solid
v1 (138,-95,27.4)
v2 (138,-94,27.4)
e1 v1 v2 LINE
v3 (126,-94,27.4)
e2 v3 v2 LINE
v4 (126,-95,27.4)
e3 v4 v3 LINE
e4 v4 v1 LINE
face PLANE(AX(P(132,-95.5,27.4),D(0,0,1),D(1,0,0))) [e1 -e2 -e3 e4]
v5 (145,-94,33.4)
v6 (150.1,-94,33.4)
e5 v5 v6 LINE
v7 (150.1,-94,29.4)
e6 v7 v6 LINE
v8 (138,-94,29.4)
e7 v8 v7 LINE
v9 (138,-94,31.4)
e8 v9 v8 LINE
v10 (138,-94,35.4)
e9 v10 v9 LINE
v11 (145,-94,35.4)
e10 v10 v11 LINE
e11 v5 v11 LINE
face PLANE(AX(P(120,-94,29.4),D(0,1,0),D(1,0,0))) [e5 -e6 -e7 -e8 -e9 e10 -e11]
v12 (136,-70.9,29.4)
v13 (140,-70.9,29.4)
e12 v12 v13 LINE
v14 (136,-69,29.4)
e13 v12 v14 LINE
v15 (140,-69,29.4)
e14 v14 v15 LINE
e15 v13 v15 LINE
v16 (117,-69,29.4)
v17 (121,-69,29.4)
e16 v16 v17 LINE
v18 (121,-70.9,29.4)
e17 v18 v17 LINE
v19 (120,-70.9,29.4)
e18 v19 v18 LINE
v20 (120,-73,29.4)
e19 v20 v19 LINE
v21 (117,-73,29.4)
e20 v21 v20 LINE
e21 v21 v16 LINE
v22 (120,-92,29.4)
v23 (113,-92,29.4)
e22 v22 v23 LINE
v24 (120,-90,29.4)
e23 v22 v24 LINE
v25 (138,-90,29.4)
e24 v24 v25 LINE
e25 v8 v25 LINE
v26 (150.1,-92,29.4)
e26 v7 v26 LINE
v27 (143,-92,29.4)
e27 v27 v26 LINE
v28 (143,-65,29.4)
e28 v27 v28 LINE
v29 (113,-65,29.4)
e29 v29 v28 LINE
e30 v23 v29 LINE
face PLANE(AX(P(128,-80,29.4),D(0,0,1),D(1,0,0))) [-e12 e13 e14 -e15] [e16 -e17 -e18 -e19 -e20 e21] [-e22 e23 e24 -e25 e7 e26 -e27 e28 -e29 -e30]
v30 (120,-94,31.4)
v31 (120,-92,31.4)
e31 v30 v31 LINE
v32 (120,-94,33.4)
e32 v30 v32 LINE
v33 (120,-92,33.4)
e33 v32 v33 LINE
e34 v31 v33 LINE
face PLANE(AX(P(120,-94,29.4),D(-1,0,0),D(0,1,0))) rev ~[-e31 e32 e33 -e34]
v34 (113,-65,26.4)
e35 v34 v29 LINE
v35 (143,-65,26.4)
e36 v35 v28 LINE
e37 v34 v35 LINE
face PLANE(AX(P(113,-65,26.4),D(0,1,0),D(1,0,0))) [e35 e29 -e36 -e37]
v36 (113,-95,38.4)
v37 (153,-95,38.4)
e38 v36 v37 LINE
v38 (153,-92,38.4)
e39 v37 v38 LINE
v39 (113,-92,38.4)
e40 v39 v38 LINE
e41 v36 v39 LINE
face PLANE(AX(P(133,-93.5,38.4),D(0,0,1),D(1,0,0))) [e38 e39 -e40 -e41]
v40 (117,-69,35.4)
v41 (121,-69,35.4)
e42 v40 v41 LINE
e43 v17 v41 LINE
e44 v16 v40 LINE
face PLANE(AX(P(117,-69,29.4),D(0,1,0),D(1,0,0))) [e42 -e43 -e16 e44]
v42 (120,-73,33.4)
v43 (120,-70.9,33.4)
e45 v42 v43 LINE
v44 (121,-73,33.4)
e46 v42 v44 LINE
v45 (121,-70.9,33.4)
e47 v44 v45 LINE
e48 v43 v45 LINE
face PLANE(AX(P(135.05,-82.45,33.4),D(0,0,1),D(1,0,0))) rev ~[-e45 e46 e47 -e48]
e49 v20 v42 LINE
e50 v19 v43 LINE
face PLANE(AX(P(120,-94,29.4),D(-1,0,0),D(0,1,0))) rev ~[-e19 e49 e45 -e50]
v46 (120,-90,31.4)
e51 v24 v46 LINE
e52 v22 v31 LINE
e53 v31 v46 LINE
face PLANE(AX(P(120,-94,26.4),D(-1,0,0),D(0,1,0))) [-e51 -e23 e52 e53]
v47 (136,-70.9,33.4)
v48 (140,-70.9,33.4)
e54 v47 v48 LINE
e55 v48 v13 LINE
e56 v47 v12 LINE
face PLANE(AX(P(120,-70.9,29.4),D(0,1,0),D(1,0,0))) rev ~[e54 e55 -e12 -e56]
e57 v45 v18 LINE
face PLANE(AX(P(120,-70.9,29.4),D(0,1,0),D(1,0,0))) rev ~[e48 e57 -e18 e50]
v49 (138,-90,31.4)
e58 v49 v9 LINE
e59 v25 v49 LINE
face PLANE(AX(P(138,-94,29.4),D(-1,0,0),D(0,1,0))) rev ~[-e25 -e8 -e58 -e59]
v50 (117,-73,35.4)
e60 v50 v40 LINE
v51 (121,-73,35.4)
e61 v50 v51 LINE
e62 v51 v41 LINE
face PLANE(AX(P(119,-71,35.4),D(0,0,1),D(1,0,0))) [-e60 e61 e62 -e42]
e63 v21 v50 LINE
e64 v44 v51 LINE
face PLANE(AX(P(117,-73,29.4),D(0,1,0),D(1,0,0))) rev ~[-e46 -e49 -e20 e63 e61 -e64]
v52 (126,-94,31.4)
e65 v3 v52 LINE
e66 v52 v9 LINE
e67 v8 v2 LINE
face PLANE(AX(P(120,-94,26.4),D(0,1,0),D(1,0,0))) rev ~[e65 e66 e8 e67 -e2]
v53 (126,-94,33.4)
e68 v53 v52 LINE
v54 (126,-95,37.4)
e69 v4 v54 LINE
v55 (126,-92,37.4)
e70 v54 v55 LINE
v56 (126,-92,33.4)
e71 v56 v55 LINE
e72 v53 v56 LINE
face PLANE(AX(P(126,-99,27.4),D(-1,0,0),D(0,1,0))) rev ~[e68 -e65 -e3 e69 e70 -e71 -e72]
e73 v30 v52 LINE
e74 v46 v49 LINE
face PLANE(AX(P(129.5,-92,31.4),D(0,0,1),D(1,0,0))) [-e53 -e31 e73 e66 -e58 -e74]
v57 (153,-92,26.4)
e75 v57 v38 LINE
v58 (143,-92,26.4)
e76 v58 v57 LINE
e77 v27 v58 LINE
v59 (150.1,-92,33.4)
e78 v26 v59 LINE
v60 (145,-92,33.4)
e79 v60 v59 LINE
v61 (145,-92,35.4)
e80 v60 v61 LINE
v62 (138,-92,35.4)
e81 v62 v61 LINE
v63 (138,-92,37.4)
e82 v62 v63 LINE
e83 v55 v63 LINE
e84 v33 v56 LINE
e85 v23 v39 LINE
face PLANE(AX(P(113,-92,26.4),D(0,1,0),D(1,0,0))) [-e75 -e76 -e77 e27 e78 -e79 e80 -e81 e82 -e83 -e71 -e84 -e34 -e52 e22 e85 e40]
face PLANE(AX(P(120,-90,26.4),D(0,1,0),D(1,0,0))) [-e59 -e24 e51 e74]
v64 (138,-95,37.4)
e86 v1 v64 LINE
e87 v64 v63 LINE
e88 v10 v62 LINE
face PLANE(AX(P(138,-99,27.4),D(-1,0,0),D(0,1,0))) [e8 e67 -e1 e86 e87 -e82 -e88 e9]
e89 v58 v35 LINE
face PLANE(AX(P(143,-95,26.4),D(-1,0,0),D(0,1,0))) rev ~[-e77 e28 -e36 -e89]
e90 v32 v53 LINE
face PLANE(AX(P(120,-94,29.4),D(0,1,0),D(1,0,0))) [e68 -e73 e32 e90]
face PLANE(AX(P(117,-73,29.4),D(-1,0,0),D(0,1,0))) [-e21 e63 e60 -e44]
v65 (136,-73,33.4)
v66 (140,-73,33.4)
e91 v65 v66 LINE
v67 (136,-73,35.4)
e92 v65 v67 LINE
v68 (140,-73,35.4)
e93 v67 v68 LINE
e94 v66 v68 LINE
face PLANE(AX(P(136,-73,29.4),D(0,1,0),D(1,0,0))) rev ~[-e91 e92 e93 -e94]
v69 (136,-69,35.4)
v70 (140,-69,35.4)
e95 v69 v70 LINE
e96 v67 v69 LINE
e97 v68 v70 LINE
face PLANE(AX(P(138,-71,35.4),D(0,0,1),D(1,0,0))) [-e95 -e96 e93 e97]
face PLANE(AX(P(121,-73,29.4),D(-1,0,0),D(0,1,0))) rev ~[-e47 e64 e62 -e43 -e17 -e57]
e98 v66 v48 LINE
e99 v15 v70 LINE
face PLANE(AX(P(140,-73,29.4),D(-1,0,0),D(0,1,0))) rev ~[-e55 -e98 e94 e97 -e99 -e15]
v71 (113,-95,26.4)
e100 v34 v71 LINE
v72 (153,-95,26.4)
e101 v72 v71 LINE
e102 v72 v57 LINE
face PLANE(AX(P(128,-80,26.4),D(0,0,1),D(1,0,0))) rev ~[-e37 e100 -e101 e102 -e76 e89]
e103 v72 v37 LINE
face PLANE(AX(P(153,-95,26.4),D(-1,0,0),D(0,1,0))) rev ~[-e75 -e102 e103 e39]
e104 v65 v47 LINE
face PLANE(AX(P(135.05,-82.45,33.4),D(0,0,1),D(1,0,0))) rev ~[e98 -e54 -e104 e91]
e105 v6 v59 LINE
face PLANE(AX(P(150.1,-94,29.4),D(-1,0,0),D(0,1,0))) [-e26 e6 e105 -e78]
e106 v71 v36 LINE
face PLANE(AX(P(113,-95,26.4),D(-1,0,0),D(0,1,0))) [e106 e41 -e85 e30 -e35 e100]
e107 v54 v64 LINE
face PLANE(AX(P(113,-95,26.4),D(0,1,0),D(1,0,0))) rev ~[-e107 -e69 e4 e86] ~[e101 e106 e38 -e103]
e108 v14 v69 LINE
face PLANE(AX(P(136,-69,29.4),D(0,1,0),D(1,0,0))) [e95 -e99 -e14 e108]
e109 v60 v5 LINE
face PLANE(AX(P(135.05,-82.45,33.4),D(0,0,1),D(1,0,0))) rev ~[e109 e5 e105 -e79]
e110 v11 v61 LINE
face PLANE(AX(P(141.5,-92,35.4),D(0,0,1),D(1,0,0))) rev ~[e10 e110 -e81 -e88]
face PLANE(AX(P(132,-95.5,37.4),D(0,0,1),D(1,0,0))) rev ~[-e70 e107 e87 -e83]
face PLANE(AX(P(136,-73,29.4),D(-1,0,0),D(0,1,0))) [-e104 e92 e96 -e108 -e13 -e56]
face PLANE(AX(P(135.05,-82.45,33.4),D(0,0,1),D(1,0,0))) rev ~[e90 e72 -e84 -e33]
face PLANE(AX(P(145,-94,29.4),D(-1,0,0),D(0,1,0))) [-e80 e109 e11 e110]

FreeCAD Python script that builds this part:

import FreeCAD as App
import Part
import Sketcher
Q = App.Units.Quantity


def add_polygon(sketch, points):
    """Adds a closed chain of lines whose ends are joined by coincident constraints."""
    first, n = sketch.GeometryCount, len(points)
    for a, b in zip(points, points[1:] + points[:1]):
        sketch.addGeometry(Part.LineSegment(App.Vector(*a, 0), App.Vector(*b, 0)), False)
    for i in range(n):
        sketch.addConstraint(Sketcher.Constraint("Coincident", first + i, 2, first + (i + 1) % n, 1))

doc = App.newDocument("Part")
body = doc.addObject("PartDesign::Body", "Body")

# Sketch on XY plane
sketch1 = body.newObject("Sketcher::SketchObject", "Sketch")
sketch1.AttachmentSupport = (doc.getObject("XY_Plane"), [""])
sketch1.MapMode = "FlatFace"
sketch1.AttachmentOffset = App.Placement(App.Vector(0, 0, 3), App.Rotation())
add_polygon(sketch1, [(25, 5), (25, 1), (32, 1), (32, 5)])  # lines 0-3
sketch1.addConstraint(Sketcher.Constraint("Vertical", 0))
sketch1.addConstraint(Sketcher.Constraint("Horizontal", 1))
sketch1.addConstraint(Sketcher.Constraint("Vertical", 2))
sketch1.addConstraint(Sketcher.Constraint("Horizontal", 3))
sketch1.addConstraint(Sketcher.Constraint("DistanceX", 1, 1, 1, 2, Q("7 mm")))
sketch1.addConstraint(Sketcher.Constraint("DistanceY", 0, 2, 0, 1, Q("4 mm")))
sketch1.addConstraint(Sketcher.Constraint("DistanceX", -1, 1, 0, 2, Q("25 mm")))
sketch1.addConstraint(Sketcher.Constraint("DistanceY", -1, 1, 0, 2, Q("1 mm")))
pad1 = body.newObject("PartDesign::Pad", "Pad")
pad1.Profile = sketch1
pad1.Length = 6
body2 = doc.addObject("PartDesign::Body", "Body001")

# Sketch on XY plane
sketch2 = body2.newObject("Sketcher::SketchObject", "Sketch001")
sketch2.AttachmentSupport = (doc.getObject("XY_Plane001"), [""])
sketch2.MapMode = "FlatFace"
sketch2.AttachmentOffset = App.Placement(App.Vector(0, 0, 3), App.Rotation())
add_polygon(sketch2, [(7, 24.1), (7, 1), (37.1, 1), (37.1, 24.1)])  # lines 0-3
sketch2.addConstraint(Sketcher.Constraint("Vertical", 0))
sketch2.addConstraint(Sketcher.Constraint("Horizontal", 1))
sketch2.addConstraint(Sketcher.Constraint("Vertical", 2))
sketch2.addConstraint(Sketcher.Constraint("Horizontal", 3))
sketch2.addConstraint(Sketcher.Constraint("DistanceX", 1, 1, 1, 2, Q("30.1 mm")))
sketch2.addConstraint(Sketcher.Constraint("DistanceY", 0, 2, 0, 1, Q("23.1 mm")))
sketch2.addConstraint(Sketcher.Constraint("DistanceX", -1, 1, 0, 2, Q("7 mm")))
sketch2.addConstraint(Sketcher.Constraint("DistanceY", -1, 1, 0, 2, Q("1 mm")))
pad2 = body2.newObject("PartDesign::Pad", "Pad001")
pad2.Profile = sketch2
pad2.Length = 4
body3 = doc.addObject("PartDesign::Body", "Body002")

# Sketch on XY plane
sketch3 = body3.newObject("Sketcher::SketchObject", "Sketch002")
sketch3.AttachmentSupport = (doc.getObject("XY_Plane002"), [""])
sketch3.MapMode = "FlatFace"
sketch3.AttachmentOffset = App.Placement(App.Vector(0, 0, 1), App.Rotation())
add_polygon(sketch3, [(13, 3), (13, -4), (25, -4), (25, 3)])  # lines 0-3
sketch3.addConstraint(Sketcher.Constraint("Vertical", 0))
sketch3.addConstraint(Sketcher.Constraint("Horizontal", 1))
sketch3.addConstraint(Sketcher.Constraint("Vertical", 2))
sketch3.addConstraint(Sketcher.Constraint("Horizontal", 3))
sketch3.addConstraint(Sketcher.Constraint("DistanceX", 1, 1, 1, 2, Q("12 mm")))
sketch3.addConstraint(Sketcher.Constraint("DistanceY", 0, 2, 0, 1, Q("7 mm")))
sketch3.addConstraint(Sketcher.Constraint("DistanceX", -1, 1, 0, 2, Q("13 mm")))
sketch3.addConstraint(Sketcher.Constraint("DistanceY", 0, 2, -1, 1, Q("4 mm")))
pad3 = body3.newObject("PartDesign::Pad", "Pad002")
pad3.Profile = sketch3
pad3.Length = 10
body4 = doc.addObject("PartDesign::Body", "Body003")

# Sketch on XY plane
sketch4 = body4.newObject("Sketcher::SketchObject", "Sketch003")
sketch4.AttachmentSupport = (doc.getObject("XY_Plane003"), [""])
sketch4.MapMode = "FlatFace"
add_polygon(sketch4, [(0, 3), (0, 0), (40, 0), (40, 3)])  # lines 0-3
sketch4.addConstraint(Sketcher.Constraint("Vertical", 0))
sketch4.addConstraint(Sketcher.Constraint("Horizontal", 1))
sketch4.addConstraint(Sketcher.Constraint("Vertical", 2))
sketch4.addConstraint(Sketcher.Constraint("Horizontal", 3))
sketch4.addConstraint(Sketcher.Constraint("Coincident", 0, 2, -1, 1))
sketch4.addConstraint(Sketcher.Constraint("DistanceX", 1, 1, 1, 2, Q("40 mm")))
sketch4.addConstraint(Sketcher.Constraint("DistanceY", 0, 2, 0, 1, Q("3 mm")))
pad4 = body4.newObject("PartDesign::Pad", "Pad003")
pad4.Profile = sketch4
pad4.Length = 12
body5 = doc.addObject("PartDesign::Body", "Body004")

# Sketch on XY plane
sketch5 = body5.newObject("Sketcher::SketchObject", "Sketch004")
sketch5.AttachmentSupport = (doc.getObject("XY_Plane004"), [""])
sketch5.MapMode = "FlatFace"
sketch5.AttachmentOffset = App.Placement(App.Vector(0, 0, 3), App.Rotation())
add_polygon(sketch5, [(23, 26), (23, 22), (27, 22), (27, 26)])  # lines 0-3
sketch5.addConstraint(Sketcher.Constraint("Vertical", 0))
sketch5.addConstraint(Sketcher.Constraint("Horizontal", 1))
sketch5.addConstraint(Sketcher.Constraint("Vertical", 2))
sketch5.addConstraint(Sketcher.Constraint("Horizontal", 3))
sketch5.addConstraint(Sketcher.Constraint("Equal", 3, 0))
sketch5.addConstraint(Sketcher.Constraint("DistanceX", 1, 1, 1, 2, Q("4 mm")))
sketch5.addConstraint(Sketcher.Constraint("DistanceX", -1, 1, 0, 2, Q("23 mm")))
sketch5.addConstraint(Sketcher.Constraint("DistanceY", -1, 1, 0, 2, Q("22 mm")))
pad5 = body5.newObject("PartDesign::Pad", "Pad004")
pad5.Profile = sketch5
pad5.Length = 6
body6 = doc.addObject("PartDesign::Body", "Body005")

# Sketch on XY plane
sketch6 = body6.newObject("Sketcher::SketchObject", "Sketch005")
sketch6.AttachmentSupport = (doc.getObject("XY_Plane005"), [""])
sketch6.MapMode = "FlatFace"
sketch6.AttachmentOffset = App.Placement(App.Vector(0, 0, 3), App.Rotation())
add_polygon(sketch6, [(4, 26), (4, 22), (8, 22), (8, 26)])  # lines 0-3
sketch6.addConstraint(Sketcher.Constraint("Vertical", 0))
sketch6.addConstraint(Sketcher.Constraint("Horizontal", 1))
sketch6.addConstraint(Sketcher.Constraint("Vertical", 2))
sketch6.addConstraint(Sketcher.Constraint("Horizontal", 3))
sketch6.addConstraint(Sketcher.Constraint("Equal", 3, 0))
sketch6.addConstraint(Sketcher.Constraint("DistanceX", 1, 1, 1, 2, Q("4 mm")))
sketch6.addConstraint(Sketcher.Constraint("DistanceX", -1, 1, 0, 2, Q("4 mm")))
sketch6.addConstraint(Sketcher.Constraint("DistanceY", -1, 1, 0, 2, Q("22 mm")))
pad6 = body6.newObject("PartDesign::Pad", "Pad005")
pad6.Profile = sketch6
pad6.Length = 6
body7 = doc.addObject("PartDesign::Body", "Body006")

# Sketch on XY plane
sketch7 = body7.newObject("Sketcher::SketchObject", "Sketch006")
sketch7.AttachmentSupport = (doc.getObject("XY_Plane006"), [""])
sketch7.MapMode = "FlatFace"
add_polygon(sketch7, [(0, 30), (0, 0), (30, 0), (30, 30)])  # lines 0-3
sketch7.addConstraint(Sketcher.Constraint("Vertical", 0))
sketch7.addConstraint(Sketcher.Constraint("Horizontal", 1))
sketch7.addConstraint(Sketcher.Constraint("Vertical", 2))
sketch7.addConstraint(Sketcher.Constraint("Horizontal", 3))
sketch7.addConstraint(Sketcher.Constraint("Coincident", 0, 2, -1, 1))
sketch7.addConstraint(Sketcher.Constraint("Equal", 3, 0))
sketch7.addConstraint(Sketcher.Constraint("DistanceX", 1, 1, 1, 2, Q("30 mm")))
pad7 = body7.newObject("PartDesign::Pad", "Pad006")
pad7.Profile = sketch7
pad7.Length = 3
doc.recompute()

boolean = body7.newObject("PartDesign::Boolean", "Boolean")
boolean.Type = "Fuse"
boolean.addObjects([body4])
doc.recompute()

boolean2 = body7.newObject("PartDesign::Boolean", "Boolean001")
boolean2.Type = "Fuse"
boolean2.addObjects([body5])
doc.recompute()

boolean3 = body7.newObject("PartDesign::Boolean", "Boolean002")
boolean3.Type = "Fuse"
boolean3.addObjects([body6])
doc.recompute()

boolean4 = body7.newObject("PartDesign::Boolean", "Boolean003")
boolean4.Type = "Cut"
boolean4.addObjects([body3])
doc.recompute()

boolean5 = body7.newObject("PartDesign::Boolean", "Boolean004")
boolean5.Type = "Cut"
boolean5.addObjects([body2])
body8 = doc.addObject("PartDesign::Body", "Body007")

# Sketch on XY plane
sketch8 = body8.newObject("Sketcher::SketchObject", "Sketch007")
sketch8.AttachmentSupport = (doc.getObject("XY_Plane007"), [""])
sketch8.MapMode = "FlatFace"
add_polygon(sketch8, [(7, 5), (7, 1), (26, 1), (26, 5)])  # lines 0-3
sketch8.addConstraint(Sketcher.Constraint("Vertical", 0))
sketch8.addConstraint(Sketcher.Constraint("Horizontal", 1))
sketch8.addConstraint(Sketcher.Constraint("Vertical", 2))
sketch8.addConstraint(Sketcher.Constraint("Horizontal", 3))
sketch8.addConstraint(Sketcher.Constraint("DistanceX", 1, 1, 1, 2, Q("19 mm")))
sketch8.addConstraint(Sketcher.Constraint("DistanceY", 0, 2, 0, 1, Q("4 mm")))
sketch8.addConstraint(Sketcher.Constraint("DistanceX", -1, 1, 0, 2, Q("7 mm")))
sketch8.addConstraint(Sketcher.Constraint("DistanceY", -1, 1, 0, 2, Q("1 mm")))
pad8 = body8.newObject("PartDesign::Pad", "Pad007")
pad8.Profile = sketch8
pad8.Length = 5
doc.recompute()

boolean6 = body8.newObject("PartDesign::Boolean", "Boolean005")
boolean6.Type = "Fuse"
boolean6.addObjects([body7])
doc.recompute()

boolean7 = body8.newObject("PartDesign::Boolean", "Boolean006")
boolean7.Type = "Cut"
boolean7.addObjects([body])
body9 = doc.addObject("PartDesign::Body", "Body008")
doc.recompute()

body8.Placement = App.Placement(App.Vector(113, -95, 26.4), App.Rotation(App.Vector(0, 0, 1), 0))
boolean8 = body9.newObject("PartDesign::Boolean", "Boolean007")
boolean8.Type = "Fuse"
boolean8.addObjects([body8])

doc.recompute()
